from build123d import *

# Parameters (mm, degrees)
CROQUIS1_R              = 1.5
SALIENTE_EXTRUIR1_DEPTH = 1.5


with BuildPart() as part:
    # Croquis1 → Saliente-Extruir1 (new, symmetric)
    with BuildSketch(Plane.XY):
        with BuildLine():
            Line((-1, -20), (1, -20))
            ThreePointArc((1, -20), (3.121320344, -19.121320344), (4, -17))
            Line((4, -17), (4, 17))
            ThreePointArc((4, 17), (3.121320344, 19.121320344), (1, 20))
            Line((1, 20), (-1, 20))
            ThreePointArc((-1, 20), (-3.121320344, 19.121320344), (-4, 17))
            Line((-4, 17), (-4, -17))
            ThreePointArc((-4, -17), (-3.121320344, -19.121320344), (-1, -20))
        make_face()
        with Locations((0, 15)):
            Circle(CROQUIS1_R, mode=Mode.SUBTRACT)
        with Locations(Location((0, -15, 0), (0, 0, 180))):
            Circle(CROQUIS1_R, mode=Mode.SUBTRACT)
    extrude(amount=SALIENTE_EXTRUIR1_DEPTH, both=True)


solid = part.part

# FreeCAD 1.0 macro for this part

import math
import FreeCAD as App
import Part
import Sketcher

V = App.Vector

doc = App.newDocument("Part")
params = doc.addObject("Spreadsheet::Sheet", "Params")
for row, (alias, value) in enumerate([
    ("sketch1_diameter", "3 mm"),
    ("sketch1_radius", "3 mm"),
    ("sketch1_width", "2 mm"),
    ("sketch1_height", "34 mm"),
    ("pad1_length", "3 mm"),
], start=1):
    params.set(f"A{row}", alias)
    params.set(f"B{row}", "=" + value)
    params.setAlias(f"B{row}", alias)

body = doc.addObject("PartDesign::Body", "Body")

# Sketch on XY plane
sketch1 = doc.addObject("Sketcher::SketchObject", "Sketch")
body.addObject(sketch1)
sketch1.AttachmentSupport = (doc.XY_Plane, [""])
sketch1.MapMode = "FlatFace"
sketch1.addGeometry(Part.LineSegment(V(-1, -20, 0), V(1, -20, 0)), False)
sketch1.addGeometry(Part.ArcOfCircle(Part.Circle(V(1, -17, 0), V(0, 0, 1), 3), math.radians(-90), math.radians(0)), False)
sketch1.addGeometry(Part.LineSegment(V(4, -17, 0), V(4, 17, 0)), False)
sketch1.addGeometry(Part.ArcOfCircle(Part.Circle(V(1, 17, 0), V(0, 0, 1), 3), math.radians(0), math.radians(90)), False)
sketch1.addGeometry(Part.LineSegment(V(1, 20, 0), V(-1, 20, 0)), False)
sketch1.addGeometry(Part.ArcOfCircle(Part.Circle(V(-1, 17, 0), V(0, 0, 1), 3), math.radians(90), math.radians(180)), False)
sketch1.addGeometry(Part.LineSegment(V(-4, 17, 0), V(-4, -17, 0)), False)
sketch1.addGeometry(Part.ArcOfCircle(Part.Circle(V(-1, -17, 0), V(0, 0, 1), 3), math.radians(180), math.radians(270)), False)
sketch1.addGeometry(Part.Circle(V(0, -15, 0), V(0, 0, 1), 1.5), False)
sketch1.addGeometry(Part.Circle(V(0, 15, 0), V(0, 0, 1), 1.5), False)
sketch1.addConstraint(Sketcher.Constraint("Tangent", 0, 2, 1, 1))
sketch1.addConstraint(Sketcher.Constraint("Tangent", 1, 2, 2, 1))
sketch1.addConstraint(Sketcher.Constraint("Tangent", 2, 2, 3, 1))
sketch1.addConstraint(Sketcher.Constraint("Tangent", 3, 2, 4, 1))
sketch1.addConstraint(Sketcher.Constraint("Tangent", 4, 2, 5, 1))
sketch1.addConstraint(Sketcher.Constraint("Tangent", 5, 2, 6, 1))
sketch1.addConstraint(Sketcher.Constraint("Tangent", 6, 2, 7, 1))
sketch1.addConstraint(Sketcher.Constraint("Tangent", 7, 2, 0, 1))
sketch1.addConstraint(Sketcher.Constraint("Horizontal", 0))
sketch1.addConstraint(Sketcher.Constraint("Vertical", 2))
sketch1.addConstraint(Sketcher.Constraint("Horizontal", 4))
sketch1.addConstraint(Sketcher.Constraint("Vertical", 6))
sketch1.addConstraint(Sketcher.Constraint("Equal", 1, 3))
sketch1.addConstraint(Sketcher.Constraint("Equal", 3, 5))
sketch1.addConstraint(Sketcher.Constraint("Equal", 5, 7))
sketch1.addConstraint(Sketcher.Constraint("Equal", 8, 9))
sketch1.addConstraint(Sketcher.Constraint("Symmetric", 1, 3, 5, 3, -1, 1))
sketch1.addConstraint(Sketcher.Constraint("Symmetric", 8, 3, 9, 3, -1, 1))
sketch1.addConstraint(Sketcher.Constraint("PointOnObject", 8, 3, -2))
sketch1.addConstraint(Sketcher.Constraint("Diameter", 8, 3.0))
sketch1.addConstraint(Sketcher.Constraint("Radius", 1, 3.0))
sketch1.addConstraint(Sketcher.Constraint("DistanceX", 0, 1, 0, 2, 2.0))
sketch1.addConstraint(Sketcher.Constraint("DistanceY", 2, 1, 2, 2, 34.0))
sketch1.addConstraint(Sketcher.Constraint("DistanceY", 8, 3, -1, 1, 15.0))
sketch1.setExpression("Constraints[19]", "Params.sketch1_diameter")
sketch1.setExpression("Constraints[20]", "Params.sketch1_radius")
sketch1.setExpression("Constraints[21]", "Params.sketch1_width")
sketch1.setExpression("Constraints[22]", "Params.sketch1_height")
pad1 = doc.addObject("PartDesign::Pad", "Pad")
body.addObject(pad1)
pad1.Profile = sketch1
pad1.setExpression("Length", "Params.pad1_length")
pad1.Midplane = True

doc.recompute()
